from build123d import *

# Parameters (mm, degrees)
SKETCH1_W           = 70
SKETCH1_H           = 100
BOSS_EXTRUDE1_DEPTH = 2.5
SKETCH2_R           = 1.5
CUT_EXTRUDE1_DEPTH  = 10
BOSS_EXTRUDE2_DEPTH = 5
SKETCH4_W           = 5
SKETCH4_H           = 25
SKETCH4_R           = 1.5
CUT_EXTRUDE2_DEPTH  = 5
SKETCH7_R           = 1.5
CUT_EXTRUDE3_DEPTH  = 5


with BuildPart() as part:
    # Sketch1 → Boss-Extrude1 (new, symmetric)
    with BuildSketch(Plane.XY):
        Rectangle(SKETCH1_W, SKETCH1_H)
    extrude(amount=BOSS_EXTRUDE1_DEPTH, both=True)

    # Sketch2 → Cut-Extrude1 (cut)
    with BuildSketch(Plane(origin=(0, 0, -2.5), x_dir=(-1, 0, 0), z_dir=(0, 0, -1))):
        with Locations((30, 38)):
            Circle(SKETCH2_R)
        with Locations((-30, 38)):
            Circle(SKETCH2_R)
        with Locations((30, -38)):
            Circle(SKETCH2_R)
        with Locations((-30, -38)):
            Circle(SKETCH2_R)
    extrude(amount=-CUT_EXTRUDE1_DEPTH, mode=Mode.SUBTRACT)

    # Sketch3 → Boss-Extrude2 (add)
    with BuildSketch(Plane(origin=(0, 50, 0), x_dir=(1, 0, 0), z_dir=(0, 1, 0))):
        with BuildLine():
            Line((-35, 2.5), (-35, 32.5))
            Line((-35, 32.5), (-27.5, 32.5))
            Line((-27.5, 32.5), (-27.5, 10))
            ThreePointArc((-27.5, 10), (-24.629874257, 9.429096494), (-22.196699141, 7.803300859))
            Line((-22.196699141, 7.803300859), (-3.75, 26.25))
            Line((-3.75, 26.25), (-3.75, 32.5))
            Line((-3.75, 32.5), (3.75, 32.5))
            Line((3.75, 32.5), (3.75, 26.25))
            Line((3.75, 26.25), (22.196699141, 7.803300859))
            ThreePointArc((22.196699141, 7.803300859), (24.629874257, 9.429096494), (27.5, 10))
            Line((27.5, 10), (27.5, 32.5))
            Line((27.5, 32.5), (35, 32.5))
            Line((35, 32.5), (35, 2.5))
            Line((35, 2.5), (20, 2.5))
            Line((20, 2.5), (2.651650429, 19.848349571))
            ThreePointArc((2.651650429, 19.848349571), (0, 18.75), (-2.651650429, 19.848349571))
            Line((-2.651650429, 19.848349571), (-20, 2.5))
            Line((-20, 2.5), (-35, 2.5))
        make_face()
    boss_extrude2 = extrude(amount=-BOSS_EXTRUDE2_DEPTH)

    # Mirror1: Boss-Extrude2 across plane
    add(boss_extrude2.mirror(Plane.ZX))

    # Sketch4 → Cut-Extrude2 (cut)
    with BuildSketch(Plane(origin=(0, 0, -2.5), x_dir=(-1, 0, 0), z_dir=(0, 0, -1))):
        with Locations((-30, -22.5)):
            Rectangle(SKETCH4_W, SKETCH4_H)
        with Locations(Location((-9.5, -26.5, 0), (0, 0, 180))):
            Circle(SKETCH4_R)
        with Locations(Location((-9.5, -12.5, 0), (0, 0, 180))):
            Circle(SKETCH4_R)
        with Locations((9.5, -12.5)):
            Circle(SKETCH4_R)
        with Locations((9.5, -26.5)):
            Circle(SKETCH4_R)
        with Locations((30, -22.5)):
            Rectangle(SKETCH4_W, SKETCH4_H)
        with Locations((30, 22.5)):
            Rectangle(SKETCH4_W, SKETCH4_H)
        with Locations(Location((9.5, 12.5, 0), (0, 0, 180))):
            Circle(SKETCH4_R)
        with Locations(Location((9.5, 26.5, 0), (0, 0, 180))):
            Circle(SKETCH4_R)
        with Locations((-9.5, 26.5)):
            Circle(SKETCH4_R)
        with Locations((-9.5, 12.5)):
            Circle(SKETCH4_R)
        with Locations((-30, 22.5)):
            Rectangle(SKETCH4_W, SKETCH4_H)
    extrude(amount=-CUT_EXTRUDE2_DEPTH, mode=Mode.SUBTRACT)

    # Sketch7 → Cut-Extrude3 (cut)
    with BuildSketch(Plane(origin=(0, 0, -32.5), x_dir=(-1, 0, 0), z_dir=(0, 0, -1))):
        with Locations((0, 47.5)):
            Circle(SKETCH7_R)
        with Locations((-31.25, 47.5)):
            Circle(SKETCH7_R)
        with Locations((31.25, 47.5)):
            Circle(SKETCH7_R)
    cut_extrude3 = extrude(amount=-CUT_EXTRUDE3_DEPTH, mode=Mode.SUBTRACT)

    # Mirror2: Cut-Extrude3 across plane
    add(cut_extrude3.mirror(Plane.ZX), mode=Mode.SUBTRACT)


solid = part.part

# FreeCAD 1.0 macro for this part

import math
import FreeCAD as App
import Part
import Sketcher

V = App.Vector


def add_polygon(sketch, points):
    """Adds a closed chain of lines whose ends are joined by coincident constraints."""
    first, n = sketch.GeometryCount, len(points)
    for a, b in zip(points, points[1:] + points[:1]):
        sketch.addGeometry(Part.LineSegment(App.Vector(*a, 0), App.Vector(*b, 0)), False)
    for i in range(n):
        sketch.addConstraint(Sketcher.Constraint("Coincident", first + i, 2, first + (i + 1) % n, 1))

doc = App.newDocument("Part")
body = doc.addObject("PartDesign::Body", "Body")

sketch1 = doc.addObject("Sketcher::SketchObject", "Sketch")
body.addObject(sketch1)
sketch1.AttachmentSupport = (doc.XY_Plane, [""])
sketch1.MapMode = "FlatFace"
add_polygon(sketch1, [(-35, 50), (-35, -50), (35, -50), (35, 50)])
sketch1.addConstraint(Sketcher.Constraint("Vertical", 0))
sketch1.addConstraint(Sketcher.Constraint("Horizontal", 1))
sketch1.addConstraint(Sketcher.Constraint("Vertical", 2))
sketch1.addConstraint(Sketcher.Constraint("Horizontal", 3))
sketch1.addConstraint(Sketcher.Constraint("Symmetric", 0, 2, 2, 2, -1, 1))
sketch1.addConstraint(Sketcher.Constraint("DistanceX", 1, 1, 1, 2, 70.0))
sketch1.addConstraint(Sketcher.Constraint("DistanceY", 0, 2, 0, 1, 100.0))
pad1 = doc.addObject("PartDesign::Pad", "Pad")
body.addObject(pad1)
pad1.Profile = sketch1
pad1.Length = 5
pad1.Midplane = True

sketch2 = doc.addObject("Sketcher::SketchObject", "Sketch001")
body.addObject(sketch2)
sketch2.AttachmentSupport = (doc.XY_Plane, [""])
sketch2.MapMode = "FlatFace"
sketch2.AttachmentOffset = App.Placement(V(0, 0, -2.5), App.Rotation())
sketch2.addGeometry(Part.Circle(V(-30, 38, 0), V(0, 0, 1), 1.5), False)
sketch2.addGeometry(Part.Circle(V(30, 38, 0), V(0, 0, 1), 1.5), False)
sketch2.addGeometry(Part.Circle(V(-30, -38, 0), V(0, 0, 1), 1.5), False)
sketch2.addGeometry(Part.Circle(V(30, -38, 0), V(0, 0, 1), 1.5), False)
sketch2.addConstraint(Sketcher.Constraint("Equal", 0, 1))
sketch2.addConstraint(Sketcher.Constraint("Equal", 1, 2))
sketch2.addConstraint(Sketcher.Constraint("Equal", 2, 3))
sketch2.addConstraint(Sketcher.Constraint("Symmetric", 1, 3, 2, 3, -1, 1))
sketch2.addConstraint(Sketcher.Constraint("Symmetric", 0, 3, 3, 3, -1, 1))
sketch2.addConstraint(Sketcher.Constraint("Symmetric", 0, 3, 1, 3, -2))
sketch2.addConstraint(Sketcher.Constraint("Diameter", 0, 3.0))
sketch2.addConstraint(Sketcher.Constraint("DistanceX", 0, 3, -1, 1, 30.0))
sketch2.addConstraint(Sketcher.Constraint("DistanceY", -1, 1, 0, 3, 38.0))
pocket1 = doc.addObject("PartDesign::Pocket", "Pocket")
body.addObject(pocket1)
pocket1.Profile = sketch2
pocket1.Length = 10
pocket1.Reversed = True

sketch3 = doc.addObject("Sketcher::SketchObject", "Sketch002")
body.addObject(sketch3)
sketch3.AttachmentSupport = (doc.XZ_Plane, [""])
sketch3.MapMode = "FlatFace"
sketch3.AttachmentOffset = App.Placement(V(0, 0, -50), App.Rotation())
sketch3.addGeometry(Part.LineSegment(V(-35, -32.5, 0), V(-35, -2.5, 0)), False)
sketch3.addGeometry(Part.LineSegment(V(-35, -2.5, 0), V(-20, -2.5, 0)), False)
sketch3.addGeometry(Part.LineSegment(V(-20, -2.5, 0), V(-2.7, -19.8, 0)), False)
sketch3.addGeometry(Part.ArcOfCircle(Part.Circle(V(0, -22.5, 0), V(0, 0, 1), 3.7), math.radians(45), math.radians(135)), False)
sketch3.addGeometry(Part.LineSegment(V(2.7, -19.8, 0), V(20, -2.5, 0)), False)
sketch3.addGeometry(Part.LineSegment(V(20, -2.5, 0), V(35, -2.5, 0)), False)
sketch3.addGeometry(Part.LineSegment(V(35, -2.5, 0), V(35, -32.5, 0)), False)
sketch3.addGeometry(Part.LineSegment(V(35, -32.5, 0), V(27.5, -32.5, 0)), False)
sketch3.addGeometry(Part.LineSegment(V(27.5, -32.5, 0), V(27.5, -10, 0)), False)
sketch3.addGeometry(Part.ArcOfCircle(Part.Circle(V(27.5, -2.5, 0), V(0, 0, 1), 7.5), math.radians(-135), math.radians(-90)), False)
sketch3.addGeometry(Part.LineSegment(V(22.2, -7.8, 0), V(3.8, -26.2, 0)), False)
sketch3.addGeometry(Part.LineSegment(V(3.8, -26.2, 0), V(3.8, -32.5, 0)), False)
sketch3.addGeometry(Part.LineSegment(V(3.8, -32.5, 0), V(-3.8, -32.5, 0)), False)
sketch3.addGeometry(Part.LineSegment(V(-3.8, -32.5, 0), V(-3.8, -26.2, 0)), False)
sketch3.addGeometry(Part.LineSegment(V(-3.8, -26.2, 0), V(-22.2, -7.8, 0)), False)
sketch3.addGeometry(Part.ArcOfCircle(Part.Circle(V(-27.5, -2.5, 0), V(0, 0, 1), 7.5), math.radians(-90), math.radians(-45)), False)
sketch3.addGeometry(Part.LineSegment(V(-27.5, -10, 0), V(-27.5, -32.5, 0)), False)
sketch3.addGeometry(Part.LineSegment(V(-27.5, -32.5, 0), V(-35, -32.5, 0)), False)
sketch3.addConstraint(Sketcher.Constraint("Coincident", 0, 2, 1, 1))
sketch3.addConstraint(Sketcher.Constraint("Coincident", 1, 2, 2, 1))
sketch3.addConstraint(Sketcher.Constraint("Coincident", 2, 2, 3, 2))
sketch3.addConstraint(Sketcher.Constraint("Coincident", 3, 1, 4, 1))
sketch3.addConstraint(Sketcher.Constraint("Coincident", 4, 2, 5, 1))
sketch3.addConstraint(Sketcher.Constraint("Coincident", 5, 2, 6, 1))
sketch3.addConstraint(Sketcher.Constraint("Coincident", 6, 2, 7, 1))
sketch3.addConstraint(Sketcher.Constraint("Coincident", 7, 2, 8, 1))
sketch3.addConstraint(Sketcher.Constraint("Coincident", 8, 2, 9, 2))
sketch3.addConstraint(Sketcher.Constraint("Coincident", 9, 1, 10, 1))
sketch3.addConstraint(Sketcher.Constraint("Coincident", 10, 2, 11, 1))
sketch3.addConstraint(Sketcher.Constraint("Coincident", 11, 2, 12, 1))
sketch3.addConstraint(Sketcher.Constraint("Coincident", 12, 2, 13, 1))
sketch3.addConstraint(Sketcher.Constraint("Coincident", 13, 2, 14, 1))
sketch3.addConstraint(Sketcher.Constraint("Coincident", 14, 2, 15, 2))
sketch3.addConstraint(Sketcher.Constraint("Coincident", 15, 1, 16, 1))
sketch3.addConstraint(Sketcher.Constraint("Coincident", 16, 2, 17, 1))
sketch3.addConstraint(Sketcher.Constraint("Coincident", 17, 2, 0, 1))
sketch3.addConstraint(Sketcher.Constraint("Vertical", 0))
sketch3.addConstraint(Sketcher.Constraint("Horizontal", 1))
sketch3.addConstraint(Sketcher.Constraint("Horizontal", 5))
sketch3.addConstraint(Sketcher.Constraint("Vertical", 6))
sketch3.addConstraint(Sketcher.Constraint("Horizontal", 7))
sketch3.addConstraint(Sketcher.Constraint("Vertical", 8))
sketch3.addConstraint(Sketcher.Constraint("Vertical", 11))
sketch3.addConstraint(Sketcher.Constraint("Horizontal", 12))
sketch3.addConstraint(Sketcher.Constraint("Vertical", 13))
sketch3.addConstraint(Sketcher.Constraint("Vertical", 16))
sketch3.addConstraint(Sketcher.Constraint("Horizontal", 17))
sketch3.addConstraint(Sketcher.Constraint("Equal", 9, 15))
sketch3.addConstraint(Sketcher.Constraint("Symmetric", 9, 3, 15, 3, -2))
sketch3.addConstraint(Sketcher.Constraint("Symmetric", 2, 2, 3, 1, -2))
sketch3.addConstraint(Sketcher.Constraint("Symmetric", 1, 2, 4, 2, -2))
sketch3.addConstraint(Sketcher.Constraint("Symmetric", 10, 2, 13, 2, -2))
sketch3.addConstraint(Sketcher.Constraint("Symmetric", 7, 2, 16, 2, -2))
sketch3.addConstraint(Sketcher.Constraint("Perpendicular", 2, 4))
sketch3.addConstraint(Sketcher.Constraint("Parallel", 4, 10))
sketch3.addConstraint(Sketcher.Constraint("Perpendicular", 10, 14))
sketch3.addConstraint(Sketcher.Constraint("Horizontal", 15, 3, 0, 2))
sketch3.addConstraint(Sketcher.Constraint("Horizontal", 7, 2, 11, 2))
sketch3.addConstraint(Sketcher.Constraint("Vertical", 9, 3, 7, 2))
sketch3.addConstraint(Sketcher.Constraint("Equal", 1, 5))
sketch3.addConstraint(Sketcher.Constraint("Equal", 7, 12))
sketch3.addConstraint(Sketcher.Constraint("Radius", 9, 7.5))
sketch3.addConstraint(Sketcher.Constraint("DistanceX", 1, 1, 1, 2, 15.0))
sketch3.addConstraint(Sketcher.Constraint("DistanceY", 0, 1, 0, 2, 30.0))
sketch3.addConstraint(Sketcher.Constraint("Radius", 3, 3.75))
sketch3.addConstraint(Sketcher.Constraint("DistanceX", 7, 2, 7, 1, 7.5))
sketch3.addConstraint(Sketcher.Constraint("DistanceX", 0, 2, -1, 1, 35.0))
sketch3.addConstraint(Sketcher.Constraint("DistanceY", 8, 2, -1, 1, 10.0))
sketch3.addConstraint(Sketcher.Constraint("DistanceY", 3, 3, 9, 3, 20.0))
sketch3.addConstraint(Sketcher.Constraint("DistanceY", 11, 2, 11, 1, 6.25))
pad2 = doc.addObject("PartDesign::Pad", "Pad001")
body.addObject(pad2)
pad2.Profile = sketch3
pad2.Length = 5
doc.recompute()

mirrored = doc.addObject("PartDesign::Mirrored", "Mirrored")
body.addObject(mirrored)
mirrored.Originals = [pad2]
mirrored.MirrorPlane = (doc.XZ_Plane, [""])
body.Tip = mirrored

sketch4 = doc.addObject("Sketcher::SketchObject", "Sketch003")
body.addObject(sketch4)
sketch4.AttachmentSupport = (doc.XY_Plane, [""])
sketch4.MapMode = "FlatFace"
sketch4.AttachmentOffset = App.Placement(V(0, 0, -2.5), App.Rotation())
add_polygon(sketch4, [(32.5, -10), (32.5, -35), (27.5, -35), (27.5, -10)])
sketch4.addGeometry(Part.Circle(V(9.5, -26.5, 0), V(0, 0, 1), 1.5), False)
sketch4.addGeometry(Part.Circle(V(9.5, -12.5, 0), V(0, 0, 1), 1.5), False)
sketch4.addGeometry(Part.Circle(V(-9.5, -12.5, 0), V(0, 0, 1), 1.5), False)
sketch4.addGeometry(Part.Circle(V(-9.5, -26.5, 0), V(0, 0, 1), 1.5), False)
add_polygon(sketch4, [(-27.5, -10), (-27.5, -35), (-32.5, -35), (-32.5, -10)])
add_polygon(sketch4, [(-27.5, 35), (-27.5, 10), (-32.5, 10), (-32.5, 35)])
sketch4.addGeometry(Part.Circle(V(-9.5, 12.5, 0), V(0, 0, 1), 1.5), False)
sketch4.addGeometry(Part.Circle(V(-9.5, 26.5, 0), V(0, 0, 1), 1.5), False)
sketch4.addGeometry(Part.Circle(V(9.5, 26.5, 0), V(0, 0, 1), 1.5), False)
sketch4.addGeometry(Part.Circle(V(9.5, 12.5, 0), V(0, 0, 1), 1.5), False)
add_polygon(sketch4, [(32.5, 35), (32.5, 10), (27.5, 10), (27.5, 35)])
sketch4.addConstraint(Sketcher.Constraint("Vertical", 0))
sketch4.addConstraint(Sketcher.Constraint("Horizontal", 1))
sketch4.addConstraint(Sketcher.Constraint("Vertical", 2))
sketch4.addConstraint(Sketcher.Constraint("Horizontal", 3))
sketch4.addConstraint(Sketcher.Constraint("Vertical", 8))
sketch4.addConstraint(Sketcher.Constraint("Horizontal", 9))
sketch4.addConstraint(Sketcher.Constraint("Vertical", 10))
sketch4.addConstraint(Sketcher.Constraint("Horizontal", 11))
sketch4.addConstraint(Sketcher.Constraint("Vertical", 12))
sketch4.addConstraint(Sketcher.Constraint("Horizontal", 13))
sketch4.addConstraint(Sketcher.Constraint("Vertical", 14))
sketch4.addConstraint(Sketcher.Constraint("Horizontal", 15))
sketch4.addConstraint(Sketcher.Constraint("Vertical", 20))
sketch4.addConstraint(Sketcher.Constraint("Horizontal", 21))
sketch4.addConstraint(Sketcher.Constraint("Vertical", 22))
sketch4.addConstraint(Sketcher.Constraint("Horizontal", 23))
sketch4.addConstraint(Sketcher.Constraint("Equal", 4, 5))
sketch4.addConstraint(Sketcher.Constraint("Equal", 5, 6))
sketch4.addConstraint(Sketcher.Constraint("Equal", 6, 7))
sketch4.addConstraint(Sketcher.Constraint("Equal", 7, 16))
sketch4.addConstraint(Sketcher.Constraint("Equal", 16, 17))
sketch4.addConstraint(Sketcher.Constraint("Equal", 17, 18))
sketch4.addConstraint(Sketcher.Constraint("Equal", 18, 19))
sketch4.addConstraint(Sketcher.Constraint("Symmetric", 5, 3, 16, 3, -1, 1))
sketch4.addConstraint(Sketcher.Constraint("Symmetric", 4, 3, 17, 3, -1, 1))
sketch4.addConstraint(Sketcher.Constraint("Symmetric", 7, 3, 18, 3, -1, 1))
sketch4.addConstraint(Sketcher.Constraint("Symmetric", 6, 3, 19, 3, -1, 1))
sketch4.addConstraint(Sketcher.Constraint("Symmetric", 2, 2, 12, 2, -1, 1))
sketch4.addConstraint(Sketcher.Constraint("Symmetric", 0, 2, 14, 2, -1, 1))
sketch4.addConstraint(Sketcher.Constraint("Symmetric", 10, 2, 20, 2, -1, 1))
sketch4.addConstraint(Sketcher.Constraint("Symmetric", 8, 2, 22, 2, -1, 1))
sketch4.addConstraint(Sketcher.Constraint("Symmetric", 5, 3, 6, 3, -2))
sketch4.addConstraint(Sketcher.Constraint("Symmetric", 4, 3, 7, 3, -2))
sketch4.addConstraint(Sketcher.Constraint("Symmetric", 1, 2, 8, 2, -2))
sketch4.addConstraint(Sketcher.Constraint("Symmetric", 3, 2, 10, 2, -2))
sketch4.addConstraint(Sketcher.Constraint("Vertical", 4, 3, 5, 3))
sketch4.addConstraint(Sketcher.Constraint("Diameter", 4, 3.0))
sketch4.addConstraint(Sketcher.Constraint("DistanceX", 1, 2, 1, 1, 5.0))
sketch4.addConstraint(Sketcher.Constraint("DistanceY", 0, 2, 0, 1, 25.0))
sketch4.addConstraint(Sketcher.Constraint("DistanceY", 0, 2, -1, 1, 35.0))
sketch4.addConstraint(Sketcher.Constraint("DistanceY", 4, 3, 5, 3, 14.0))
sketch4.addConstraint(Sketcher.Constraint("DistanceX", 6, 3, 5, 3, 19.0))
sketch4.addConstraint(Sketcher.Constraint("DistanceY", 6, 3, 16, 3, 25.0))
sketch4.addConstraint(Sketcher.Constraint("DistanceX", 4, 3, 0, 2, 23.0))
pocket2 = doc.addObject("PartDesign::Pocket", "Pocket001")
body.addObject(pocket2)
pocket2.Profile = sketch4
pocket2.Length = 5
pocket2.Reversed = True

sketch5 = doc.addObject("Sketcher::SketchObject", "Sketch004")
body.addObject(sketch5)
sketch5.AttachmentSupport = (doc.XY_Plane, [""])
sketch5.MapMode = "FlatFace"
sketch5.AttachmentOffset = App.Placement(V(0, 0, -32.5), App.Rotation())
sketch5.addGeometry(Part.Circle(V(0, 47.5, 0), V(0, 0, 1), 1.5), False)
sketch5.addGeometry(Part.Circle(V(31.2, 47.5, 0), V(0, 0, 1), 1.5), False)
sketch5.addGeometry(Part.Circle(V(-31.2, 47.5, 0), V(0, 0, 1), 1.5), False)
sketch5.addConstraint(Sketcher.Constraint("Equal", 0, 1))
sketch5.addConstraint(Sketcher.Constraint("Equal", 1, 2))
sketch5.addConstraint(Sketcher.Constraint("Symmetric", 1, 3, 2, 3, -2))
sketch5.addConstraint(Sketcher.Constraint("PointOnObject", 0, 3, -2))
sketch5.addConstraint(Sketcher.Constraint("Horizontal", 0, 3, 1, 3))
sketch5.addConstraint(Sketcher.Constraint("Diameter", 0, 3.0))
sketch5.addConstraint(Sketcher.Constraint("DistanceY", -1, 1, 0, 3, 47.5))
sketch5.addConstraint(Sketcher.Constraint("DistanceX", 2, 3, 1, 3, 62.5))
pocket3 = doc.addObject("PartDesign::Pocket", "Pocket002")
body.addObject(pocket3)
pocket3.Profile = sketch5
pocket3.Length = 5
pocket3.Reversed = True
doc.recompute()

mirrored2 = doc.addObject("PartDesign::Mirrored", "Mirrored001")
body.addObject(mirrored2)
mirrored2.Originals = [pocket3]
mirrored2.MirrorPlane = (doc.XZ_Plane, [""])
body.Tip = mirrored2

doc.recompute()
